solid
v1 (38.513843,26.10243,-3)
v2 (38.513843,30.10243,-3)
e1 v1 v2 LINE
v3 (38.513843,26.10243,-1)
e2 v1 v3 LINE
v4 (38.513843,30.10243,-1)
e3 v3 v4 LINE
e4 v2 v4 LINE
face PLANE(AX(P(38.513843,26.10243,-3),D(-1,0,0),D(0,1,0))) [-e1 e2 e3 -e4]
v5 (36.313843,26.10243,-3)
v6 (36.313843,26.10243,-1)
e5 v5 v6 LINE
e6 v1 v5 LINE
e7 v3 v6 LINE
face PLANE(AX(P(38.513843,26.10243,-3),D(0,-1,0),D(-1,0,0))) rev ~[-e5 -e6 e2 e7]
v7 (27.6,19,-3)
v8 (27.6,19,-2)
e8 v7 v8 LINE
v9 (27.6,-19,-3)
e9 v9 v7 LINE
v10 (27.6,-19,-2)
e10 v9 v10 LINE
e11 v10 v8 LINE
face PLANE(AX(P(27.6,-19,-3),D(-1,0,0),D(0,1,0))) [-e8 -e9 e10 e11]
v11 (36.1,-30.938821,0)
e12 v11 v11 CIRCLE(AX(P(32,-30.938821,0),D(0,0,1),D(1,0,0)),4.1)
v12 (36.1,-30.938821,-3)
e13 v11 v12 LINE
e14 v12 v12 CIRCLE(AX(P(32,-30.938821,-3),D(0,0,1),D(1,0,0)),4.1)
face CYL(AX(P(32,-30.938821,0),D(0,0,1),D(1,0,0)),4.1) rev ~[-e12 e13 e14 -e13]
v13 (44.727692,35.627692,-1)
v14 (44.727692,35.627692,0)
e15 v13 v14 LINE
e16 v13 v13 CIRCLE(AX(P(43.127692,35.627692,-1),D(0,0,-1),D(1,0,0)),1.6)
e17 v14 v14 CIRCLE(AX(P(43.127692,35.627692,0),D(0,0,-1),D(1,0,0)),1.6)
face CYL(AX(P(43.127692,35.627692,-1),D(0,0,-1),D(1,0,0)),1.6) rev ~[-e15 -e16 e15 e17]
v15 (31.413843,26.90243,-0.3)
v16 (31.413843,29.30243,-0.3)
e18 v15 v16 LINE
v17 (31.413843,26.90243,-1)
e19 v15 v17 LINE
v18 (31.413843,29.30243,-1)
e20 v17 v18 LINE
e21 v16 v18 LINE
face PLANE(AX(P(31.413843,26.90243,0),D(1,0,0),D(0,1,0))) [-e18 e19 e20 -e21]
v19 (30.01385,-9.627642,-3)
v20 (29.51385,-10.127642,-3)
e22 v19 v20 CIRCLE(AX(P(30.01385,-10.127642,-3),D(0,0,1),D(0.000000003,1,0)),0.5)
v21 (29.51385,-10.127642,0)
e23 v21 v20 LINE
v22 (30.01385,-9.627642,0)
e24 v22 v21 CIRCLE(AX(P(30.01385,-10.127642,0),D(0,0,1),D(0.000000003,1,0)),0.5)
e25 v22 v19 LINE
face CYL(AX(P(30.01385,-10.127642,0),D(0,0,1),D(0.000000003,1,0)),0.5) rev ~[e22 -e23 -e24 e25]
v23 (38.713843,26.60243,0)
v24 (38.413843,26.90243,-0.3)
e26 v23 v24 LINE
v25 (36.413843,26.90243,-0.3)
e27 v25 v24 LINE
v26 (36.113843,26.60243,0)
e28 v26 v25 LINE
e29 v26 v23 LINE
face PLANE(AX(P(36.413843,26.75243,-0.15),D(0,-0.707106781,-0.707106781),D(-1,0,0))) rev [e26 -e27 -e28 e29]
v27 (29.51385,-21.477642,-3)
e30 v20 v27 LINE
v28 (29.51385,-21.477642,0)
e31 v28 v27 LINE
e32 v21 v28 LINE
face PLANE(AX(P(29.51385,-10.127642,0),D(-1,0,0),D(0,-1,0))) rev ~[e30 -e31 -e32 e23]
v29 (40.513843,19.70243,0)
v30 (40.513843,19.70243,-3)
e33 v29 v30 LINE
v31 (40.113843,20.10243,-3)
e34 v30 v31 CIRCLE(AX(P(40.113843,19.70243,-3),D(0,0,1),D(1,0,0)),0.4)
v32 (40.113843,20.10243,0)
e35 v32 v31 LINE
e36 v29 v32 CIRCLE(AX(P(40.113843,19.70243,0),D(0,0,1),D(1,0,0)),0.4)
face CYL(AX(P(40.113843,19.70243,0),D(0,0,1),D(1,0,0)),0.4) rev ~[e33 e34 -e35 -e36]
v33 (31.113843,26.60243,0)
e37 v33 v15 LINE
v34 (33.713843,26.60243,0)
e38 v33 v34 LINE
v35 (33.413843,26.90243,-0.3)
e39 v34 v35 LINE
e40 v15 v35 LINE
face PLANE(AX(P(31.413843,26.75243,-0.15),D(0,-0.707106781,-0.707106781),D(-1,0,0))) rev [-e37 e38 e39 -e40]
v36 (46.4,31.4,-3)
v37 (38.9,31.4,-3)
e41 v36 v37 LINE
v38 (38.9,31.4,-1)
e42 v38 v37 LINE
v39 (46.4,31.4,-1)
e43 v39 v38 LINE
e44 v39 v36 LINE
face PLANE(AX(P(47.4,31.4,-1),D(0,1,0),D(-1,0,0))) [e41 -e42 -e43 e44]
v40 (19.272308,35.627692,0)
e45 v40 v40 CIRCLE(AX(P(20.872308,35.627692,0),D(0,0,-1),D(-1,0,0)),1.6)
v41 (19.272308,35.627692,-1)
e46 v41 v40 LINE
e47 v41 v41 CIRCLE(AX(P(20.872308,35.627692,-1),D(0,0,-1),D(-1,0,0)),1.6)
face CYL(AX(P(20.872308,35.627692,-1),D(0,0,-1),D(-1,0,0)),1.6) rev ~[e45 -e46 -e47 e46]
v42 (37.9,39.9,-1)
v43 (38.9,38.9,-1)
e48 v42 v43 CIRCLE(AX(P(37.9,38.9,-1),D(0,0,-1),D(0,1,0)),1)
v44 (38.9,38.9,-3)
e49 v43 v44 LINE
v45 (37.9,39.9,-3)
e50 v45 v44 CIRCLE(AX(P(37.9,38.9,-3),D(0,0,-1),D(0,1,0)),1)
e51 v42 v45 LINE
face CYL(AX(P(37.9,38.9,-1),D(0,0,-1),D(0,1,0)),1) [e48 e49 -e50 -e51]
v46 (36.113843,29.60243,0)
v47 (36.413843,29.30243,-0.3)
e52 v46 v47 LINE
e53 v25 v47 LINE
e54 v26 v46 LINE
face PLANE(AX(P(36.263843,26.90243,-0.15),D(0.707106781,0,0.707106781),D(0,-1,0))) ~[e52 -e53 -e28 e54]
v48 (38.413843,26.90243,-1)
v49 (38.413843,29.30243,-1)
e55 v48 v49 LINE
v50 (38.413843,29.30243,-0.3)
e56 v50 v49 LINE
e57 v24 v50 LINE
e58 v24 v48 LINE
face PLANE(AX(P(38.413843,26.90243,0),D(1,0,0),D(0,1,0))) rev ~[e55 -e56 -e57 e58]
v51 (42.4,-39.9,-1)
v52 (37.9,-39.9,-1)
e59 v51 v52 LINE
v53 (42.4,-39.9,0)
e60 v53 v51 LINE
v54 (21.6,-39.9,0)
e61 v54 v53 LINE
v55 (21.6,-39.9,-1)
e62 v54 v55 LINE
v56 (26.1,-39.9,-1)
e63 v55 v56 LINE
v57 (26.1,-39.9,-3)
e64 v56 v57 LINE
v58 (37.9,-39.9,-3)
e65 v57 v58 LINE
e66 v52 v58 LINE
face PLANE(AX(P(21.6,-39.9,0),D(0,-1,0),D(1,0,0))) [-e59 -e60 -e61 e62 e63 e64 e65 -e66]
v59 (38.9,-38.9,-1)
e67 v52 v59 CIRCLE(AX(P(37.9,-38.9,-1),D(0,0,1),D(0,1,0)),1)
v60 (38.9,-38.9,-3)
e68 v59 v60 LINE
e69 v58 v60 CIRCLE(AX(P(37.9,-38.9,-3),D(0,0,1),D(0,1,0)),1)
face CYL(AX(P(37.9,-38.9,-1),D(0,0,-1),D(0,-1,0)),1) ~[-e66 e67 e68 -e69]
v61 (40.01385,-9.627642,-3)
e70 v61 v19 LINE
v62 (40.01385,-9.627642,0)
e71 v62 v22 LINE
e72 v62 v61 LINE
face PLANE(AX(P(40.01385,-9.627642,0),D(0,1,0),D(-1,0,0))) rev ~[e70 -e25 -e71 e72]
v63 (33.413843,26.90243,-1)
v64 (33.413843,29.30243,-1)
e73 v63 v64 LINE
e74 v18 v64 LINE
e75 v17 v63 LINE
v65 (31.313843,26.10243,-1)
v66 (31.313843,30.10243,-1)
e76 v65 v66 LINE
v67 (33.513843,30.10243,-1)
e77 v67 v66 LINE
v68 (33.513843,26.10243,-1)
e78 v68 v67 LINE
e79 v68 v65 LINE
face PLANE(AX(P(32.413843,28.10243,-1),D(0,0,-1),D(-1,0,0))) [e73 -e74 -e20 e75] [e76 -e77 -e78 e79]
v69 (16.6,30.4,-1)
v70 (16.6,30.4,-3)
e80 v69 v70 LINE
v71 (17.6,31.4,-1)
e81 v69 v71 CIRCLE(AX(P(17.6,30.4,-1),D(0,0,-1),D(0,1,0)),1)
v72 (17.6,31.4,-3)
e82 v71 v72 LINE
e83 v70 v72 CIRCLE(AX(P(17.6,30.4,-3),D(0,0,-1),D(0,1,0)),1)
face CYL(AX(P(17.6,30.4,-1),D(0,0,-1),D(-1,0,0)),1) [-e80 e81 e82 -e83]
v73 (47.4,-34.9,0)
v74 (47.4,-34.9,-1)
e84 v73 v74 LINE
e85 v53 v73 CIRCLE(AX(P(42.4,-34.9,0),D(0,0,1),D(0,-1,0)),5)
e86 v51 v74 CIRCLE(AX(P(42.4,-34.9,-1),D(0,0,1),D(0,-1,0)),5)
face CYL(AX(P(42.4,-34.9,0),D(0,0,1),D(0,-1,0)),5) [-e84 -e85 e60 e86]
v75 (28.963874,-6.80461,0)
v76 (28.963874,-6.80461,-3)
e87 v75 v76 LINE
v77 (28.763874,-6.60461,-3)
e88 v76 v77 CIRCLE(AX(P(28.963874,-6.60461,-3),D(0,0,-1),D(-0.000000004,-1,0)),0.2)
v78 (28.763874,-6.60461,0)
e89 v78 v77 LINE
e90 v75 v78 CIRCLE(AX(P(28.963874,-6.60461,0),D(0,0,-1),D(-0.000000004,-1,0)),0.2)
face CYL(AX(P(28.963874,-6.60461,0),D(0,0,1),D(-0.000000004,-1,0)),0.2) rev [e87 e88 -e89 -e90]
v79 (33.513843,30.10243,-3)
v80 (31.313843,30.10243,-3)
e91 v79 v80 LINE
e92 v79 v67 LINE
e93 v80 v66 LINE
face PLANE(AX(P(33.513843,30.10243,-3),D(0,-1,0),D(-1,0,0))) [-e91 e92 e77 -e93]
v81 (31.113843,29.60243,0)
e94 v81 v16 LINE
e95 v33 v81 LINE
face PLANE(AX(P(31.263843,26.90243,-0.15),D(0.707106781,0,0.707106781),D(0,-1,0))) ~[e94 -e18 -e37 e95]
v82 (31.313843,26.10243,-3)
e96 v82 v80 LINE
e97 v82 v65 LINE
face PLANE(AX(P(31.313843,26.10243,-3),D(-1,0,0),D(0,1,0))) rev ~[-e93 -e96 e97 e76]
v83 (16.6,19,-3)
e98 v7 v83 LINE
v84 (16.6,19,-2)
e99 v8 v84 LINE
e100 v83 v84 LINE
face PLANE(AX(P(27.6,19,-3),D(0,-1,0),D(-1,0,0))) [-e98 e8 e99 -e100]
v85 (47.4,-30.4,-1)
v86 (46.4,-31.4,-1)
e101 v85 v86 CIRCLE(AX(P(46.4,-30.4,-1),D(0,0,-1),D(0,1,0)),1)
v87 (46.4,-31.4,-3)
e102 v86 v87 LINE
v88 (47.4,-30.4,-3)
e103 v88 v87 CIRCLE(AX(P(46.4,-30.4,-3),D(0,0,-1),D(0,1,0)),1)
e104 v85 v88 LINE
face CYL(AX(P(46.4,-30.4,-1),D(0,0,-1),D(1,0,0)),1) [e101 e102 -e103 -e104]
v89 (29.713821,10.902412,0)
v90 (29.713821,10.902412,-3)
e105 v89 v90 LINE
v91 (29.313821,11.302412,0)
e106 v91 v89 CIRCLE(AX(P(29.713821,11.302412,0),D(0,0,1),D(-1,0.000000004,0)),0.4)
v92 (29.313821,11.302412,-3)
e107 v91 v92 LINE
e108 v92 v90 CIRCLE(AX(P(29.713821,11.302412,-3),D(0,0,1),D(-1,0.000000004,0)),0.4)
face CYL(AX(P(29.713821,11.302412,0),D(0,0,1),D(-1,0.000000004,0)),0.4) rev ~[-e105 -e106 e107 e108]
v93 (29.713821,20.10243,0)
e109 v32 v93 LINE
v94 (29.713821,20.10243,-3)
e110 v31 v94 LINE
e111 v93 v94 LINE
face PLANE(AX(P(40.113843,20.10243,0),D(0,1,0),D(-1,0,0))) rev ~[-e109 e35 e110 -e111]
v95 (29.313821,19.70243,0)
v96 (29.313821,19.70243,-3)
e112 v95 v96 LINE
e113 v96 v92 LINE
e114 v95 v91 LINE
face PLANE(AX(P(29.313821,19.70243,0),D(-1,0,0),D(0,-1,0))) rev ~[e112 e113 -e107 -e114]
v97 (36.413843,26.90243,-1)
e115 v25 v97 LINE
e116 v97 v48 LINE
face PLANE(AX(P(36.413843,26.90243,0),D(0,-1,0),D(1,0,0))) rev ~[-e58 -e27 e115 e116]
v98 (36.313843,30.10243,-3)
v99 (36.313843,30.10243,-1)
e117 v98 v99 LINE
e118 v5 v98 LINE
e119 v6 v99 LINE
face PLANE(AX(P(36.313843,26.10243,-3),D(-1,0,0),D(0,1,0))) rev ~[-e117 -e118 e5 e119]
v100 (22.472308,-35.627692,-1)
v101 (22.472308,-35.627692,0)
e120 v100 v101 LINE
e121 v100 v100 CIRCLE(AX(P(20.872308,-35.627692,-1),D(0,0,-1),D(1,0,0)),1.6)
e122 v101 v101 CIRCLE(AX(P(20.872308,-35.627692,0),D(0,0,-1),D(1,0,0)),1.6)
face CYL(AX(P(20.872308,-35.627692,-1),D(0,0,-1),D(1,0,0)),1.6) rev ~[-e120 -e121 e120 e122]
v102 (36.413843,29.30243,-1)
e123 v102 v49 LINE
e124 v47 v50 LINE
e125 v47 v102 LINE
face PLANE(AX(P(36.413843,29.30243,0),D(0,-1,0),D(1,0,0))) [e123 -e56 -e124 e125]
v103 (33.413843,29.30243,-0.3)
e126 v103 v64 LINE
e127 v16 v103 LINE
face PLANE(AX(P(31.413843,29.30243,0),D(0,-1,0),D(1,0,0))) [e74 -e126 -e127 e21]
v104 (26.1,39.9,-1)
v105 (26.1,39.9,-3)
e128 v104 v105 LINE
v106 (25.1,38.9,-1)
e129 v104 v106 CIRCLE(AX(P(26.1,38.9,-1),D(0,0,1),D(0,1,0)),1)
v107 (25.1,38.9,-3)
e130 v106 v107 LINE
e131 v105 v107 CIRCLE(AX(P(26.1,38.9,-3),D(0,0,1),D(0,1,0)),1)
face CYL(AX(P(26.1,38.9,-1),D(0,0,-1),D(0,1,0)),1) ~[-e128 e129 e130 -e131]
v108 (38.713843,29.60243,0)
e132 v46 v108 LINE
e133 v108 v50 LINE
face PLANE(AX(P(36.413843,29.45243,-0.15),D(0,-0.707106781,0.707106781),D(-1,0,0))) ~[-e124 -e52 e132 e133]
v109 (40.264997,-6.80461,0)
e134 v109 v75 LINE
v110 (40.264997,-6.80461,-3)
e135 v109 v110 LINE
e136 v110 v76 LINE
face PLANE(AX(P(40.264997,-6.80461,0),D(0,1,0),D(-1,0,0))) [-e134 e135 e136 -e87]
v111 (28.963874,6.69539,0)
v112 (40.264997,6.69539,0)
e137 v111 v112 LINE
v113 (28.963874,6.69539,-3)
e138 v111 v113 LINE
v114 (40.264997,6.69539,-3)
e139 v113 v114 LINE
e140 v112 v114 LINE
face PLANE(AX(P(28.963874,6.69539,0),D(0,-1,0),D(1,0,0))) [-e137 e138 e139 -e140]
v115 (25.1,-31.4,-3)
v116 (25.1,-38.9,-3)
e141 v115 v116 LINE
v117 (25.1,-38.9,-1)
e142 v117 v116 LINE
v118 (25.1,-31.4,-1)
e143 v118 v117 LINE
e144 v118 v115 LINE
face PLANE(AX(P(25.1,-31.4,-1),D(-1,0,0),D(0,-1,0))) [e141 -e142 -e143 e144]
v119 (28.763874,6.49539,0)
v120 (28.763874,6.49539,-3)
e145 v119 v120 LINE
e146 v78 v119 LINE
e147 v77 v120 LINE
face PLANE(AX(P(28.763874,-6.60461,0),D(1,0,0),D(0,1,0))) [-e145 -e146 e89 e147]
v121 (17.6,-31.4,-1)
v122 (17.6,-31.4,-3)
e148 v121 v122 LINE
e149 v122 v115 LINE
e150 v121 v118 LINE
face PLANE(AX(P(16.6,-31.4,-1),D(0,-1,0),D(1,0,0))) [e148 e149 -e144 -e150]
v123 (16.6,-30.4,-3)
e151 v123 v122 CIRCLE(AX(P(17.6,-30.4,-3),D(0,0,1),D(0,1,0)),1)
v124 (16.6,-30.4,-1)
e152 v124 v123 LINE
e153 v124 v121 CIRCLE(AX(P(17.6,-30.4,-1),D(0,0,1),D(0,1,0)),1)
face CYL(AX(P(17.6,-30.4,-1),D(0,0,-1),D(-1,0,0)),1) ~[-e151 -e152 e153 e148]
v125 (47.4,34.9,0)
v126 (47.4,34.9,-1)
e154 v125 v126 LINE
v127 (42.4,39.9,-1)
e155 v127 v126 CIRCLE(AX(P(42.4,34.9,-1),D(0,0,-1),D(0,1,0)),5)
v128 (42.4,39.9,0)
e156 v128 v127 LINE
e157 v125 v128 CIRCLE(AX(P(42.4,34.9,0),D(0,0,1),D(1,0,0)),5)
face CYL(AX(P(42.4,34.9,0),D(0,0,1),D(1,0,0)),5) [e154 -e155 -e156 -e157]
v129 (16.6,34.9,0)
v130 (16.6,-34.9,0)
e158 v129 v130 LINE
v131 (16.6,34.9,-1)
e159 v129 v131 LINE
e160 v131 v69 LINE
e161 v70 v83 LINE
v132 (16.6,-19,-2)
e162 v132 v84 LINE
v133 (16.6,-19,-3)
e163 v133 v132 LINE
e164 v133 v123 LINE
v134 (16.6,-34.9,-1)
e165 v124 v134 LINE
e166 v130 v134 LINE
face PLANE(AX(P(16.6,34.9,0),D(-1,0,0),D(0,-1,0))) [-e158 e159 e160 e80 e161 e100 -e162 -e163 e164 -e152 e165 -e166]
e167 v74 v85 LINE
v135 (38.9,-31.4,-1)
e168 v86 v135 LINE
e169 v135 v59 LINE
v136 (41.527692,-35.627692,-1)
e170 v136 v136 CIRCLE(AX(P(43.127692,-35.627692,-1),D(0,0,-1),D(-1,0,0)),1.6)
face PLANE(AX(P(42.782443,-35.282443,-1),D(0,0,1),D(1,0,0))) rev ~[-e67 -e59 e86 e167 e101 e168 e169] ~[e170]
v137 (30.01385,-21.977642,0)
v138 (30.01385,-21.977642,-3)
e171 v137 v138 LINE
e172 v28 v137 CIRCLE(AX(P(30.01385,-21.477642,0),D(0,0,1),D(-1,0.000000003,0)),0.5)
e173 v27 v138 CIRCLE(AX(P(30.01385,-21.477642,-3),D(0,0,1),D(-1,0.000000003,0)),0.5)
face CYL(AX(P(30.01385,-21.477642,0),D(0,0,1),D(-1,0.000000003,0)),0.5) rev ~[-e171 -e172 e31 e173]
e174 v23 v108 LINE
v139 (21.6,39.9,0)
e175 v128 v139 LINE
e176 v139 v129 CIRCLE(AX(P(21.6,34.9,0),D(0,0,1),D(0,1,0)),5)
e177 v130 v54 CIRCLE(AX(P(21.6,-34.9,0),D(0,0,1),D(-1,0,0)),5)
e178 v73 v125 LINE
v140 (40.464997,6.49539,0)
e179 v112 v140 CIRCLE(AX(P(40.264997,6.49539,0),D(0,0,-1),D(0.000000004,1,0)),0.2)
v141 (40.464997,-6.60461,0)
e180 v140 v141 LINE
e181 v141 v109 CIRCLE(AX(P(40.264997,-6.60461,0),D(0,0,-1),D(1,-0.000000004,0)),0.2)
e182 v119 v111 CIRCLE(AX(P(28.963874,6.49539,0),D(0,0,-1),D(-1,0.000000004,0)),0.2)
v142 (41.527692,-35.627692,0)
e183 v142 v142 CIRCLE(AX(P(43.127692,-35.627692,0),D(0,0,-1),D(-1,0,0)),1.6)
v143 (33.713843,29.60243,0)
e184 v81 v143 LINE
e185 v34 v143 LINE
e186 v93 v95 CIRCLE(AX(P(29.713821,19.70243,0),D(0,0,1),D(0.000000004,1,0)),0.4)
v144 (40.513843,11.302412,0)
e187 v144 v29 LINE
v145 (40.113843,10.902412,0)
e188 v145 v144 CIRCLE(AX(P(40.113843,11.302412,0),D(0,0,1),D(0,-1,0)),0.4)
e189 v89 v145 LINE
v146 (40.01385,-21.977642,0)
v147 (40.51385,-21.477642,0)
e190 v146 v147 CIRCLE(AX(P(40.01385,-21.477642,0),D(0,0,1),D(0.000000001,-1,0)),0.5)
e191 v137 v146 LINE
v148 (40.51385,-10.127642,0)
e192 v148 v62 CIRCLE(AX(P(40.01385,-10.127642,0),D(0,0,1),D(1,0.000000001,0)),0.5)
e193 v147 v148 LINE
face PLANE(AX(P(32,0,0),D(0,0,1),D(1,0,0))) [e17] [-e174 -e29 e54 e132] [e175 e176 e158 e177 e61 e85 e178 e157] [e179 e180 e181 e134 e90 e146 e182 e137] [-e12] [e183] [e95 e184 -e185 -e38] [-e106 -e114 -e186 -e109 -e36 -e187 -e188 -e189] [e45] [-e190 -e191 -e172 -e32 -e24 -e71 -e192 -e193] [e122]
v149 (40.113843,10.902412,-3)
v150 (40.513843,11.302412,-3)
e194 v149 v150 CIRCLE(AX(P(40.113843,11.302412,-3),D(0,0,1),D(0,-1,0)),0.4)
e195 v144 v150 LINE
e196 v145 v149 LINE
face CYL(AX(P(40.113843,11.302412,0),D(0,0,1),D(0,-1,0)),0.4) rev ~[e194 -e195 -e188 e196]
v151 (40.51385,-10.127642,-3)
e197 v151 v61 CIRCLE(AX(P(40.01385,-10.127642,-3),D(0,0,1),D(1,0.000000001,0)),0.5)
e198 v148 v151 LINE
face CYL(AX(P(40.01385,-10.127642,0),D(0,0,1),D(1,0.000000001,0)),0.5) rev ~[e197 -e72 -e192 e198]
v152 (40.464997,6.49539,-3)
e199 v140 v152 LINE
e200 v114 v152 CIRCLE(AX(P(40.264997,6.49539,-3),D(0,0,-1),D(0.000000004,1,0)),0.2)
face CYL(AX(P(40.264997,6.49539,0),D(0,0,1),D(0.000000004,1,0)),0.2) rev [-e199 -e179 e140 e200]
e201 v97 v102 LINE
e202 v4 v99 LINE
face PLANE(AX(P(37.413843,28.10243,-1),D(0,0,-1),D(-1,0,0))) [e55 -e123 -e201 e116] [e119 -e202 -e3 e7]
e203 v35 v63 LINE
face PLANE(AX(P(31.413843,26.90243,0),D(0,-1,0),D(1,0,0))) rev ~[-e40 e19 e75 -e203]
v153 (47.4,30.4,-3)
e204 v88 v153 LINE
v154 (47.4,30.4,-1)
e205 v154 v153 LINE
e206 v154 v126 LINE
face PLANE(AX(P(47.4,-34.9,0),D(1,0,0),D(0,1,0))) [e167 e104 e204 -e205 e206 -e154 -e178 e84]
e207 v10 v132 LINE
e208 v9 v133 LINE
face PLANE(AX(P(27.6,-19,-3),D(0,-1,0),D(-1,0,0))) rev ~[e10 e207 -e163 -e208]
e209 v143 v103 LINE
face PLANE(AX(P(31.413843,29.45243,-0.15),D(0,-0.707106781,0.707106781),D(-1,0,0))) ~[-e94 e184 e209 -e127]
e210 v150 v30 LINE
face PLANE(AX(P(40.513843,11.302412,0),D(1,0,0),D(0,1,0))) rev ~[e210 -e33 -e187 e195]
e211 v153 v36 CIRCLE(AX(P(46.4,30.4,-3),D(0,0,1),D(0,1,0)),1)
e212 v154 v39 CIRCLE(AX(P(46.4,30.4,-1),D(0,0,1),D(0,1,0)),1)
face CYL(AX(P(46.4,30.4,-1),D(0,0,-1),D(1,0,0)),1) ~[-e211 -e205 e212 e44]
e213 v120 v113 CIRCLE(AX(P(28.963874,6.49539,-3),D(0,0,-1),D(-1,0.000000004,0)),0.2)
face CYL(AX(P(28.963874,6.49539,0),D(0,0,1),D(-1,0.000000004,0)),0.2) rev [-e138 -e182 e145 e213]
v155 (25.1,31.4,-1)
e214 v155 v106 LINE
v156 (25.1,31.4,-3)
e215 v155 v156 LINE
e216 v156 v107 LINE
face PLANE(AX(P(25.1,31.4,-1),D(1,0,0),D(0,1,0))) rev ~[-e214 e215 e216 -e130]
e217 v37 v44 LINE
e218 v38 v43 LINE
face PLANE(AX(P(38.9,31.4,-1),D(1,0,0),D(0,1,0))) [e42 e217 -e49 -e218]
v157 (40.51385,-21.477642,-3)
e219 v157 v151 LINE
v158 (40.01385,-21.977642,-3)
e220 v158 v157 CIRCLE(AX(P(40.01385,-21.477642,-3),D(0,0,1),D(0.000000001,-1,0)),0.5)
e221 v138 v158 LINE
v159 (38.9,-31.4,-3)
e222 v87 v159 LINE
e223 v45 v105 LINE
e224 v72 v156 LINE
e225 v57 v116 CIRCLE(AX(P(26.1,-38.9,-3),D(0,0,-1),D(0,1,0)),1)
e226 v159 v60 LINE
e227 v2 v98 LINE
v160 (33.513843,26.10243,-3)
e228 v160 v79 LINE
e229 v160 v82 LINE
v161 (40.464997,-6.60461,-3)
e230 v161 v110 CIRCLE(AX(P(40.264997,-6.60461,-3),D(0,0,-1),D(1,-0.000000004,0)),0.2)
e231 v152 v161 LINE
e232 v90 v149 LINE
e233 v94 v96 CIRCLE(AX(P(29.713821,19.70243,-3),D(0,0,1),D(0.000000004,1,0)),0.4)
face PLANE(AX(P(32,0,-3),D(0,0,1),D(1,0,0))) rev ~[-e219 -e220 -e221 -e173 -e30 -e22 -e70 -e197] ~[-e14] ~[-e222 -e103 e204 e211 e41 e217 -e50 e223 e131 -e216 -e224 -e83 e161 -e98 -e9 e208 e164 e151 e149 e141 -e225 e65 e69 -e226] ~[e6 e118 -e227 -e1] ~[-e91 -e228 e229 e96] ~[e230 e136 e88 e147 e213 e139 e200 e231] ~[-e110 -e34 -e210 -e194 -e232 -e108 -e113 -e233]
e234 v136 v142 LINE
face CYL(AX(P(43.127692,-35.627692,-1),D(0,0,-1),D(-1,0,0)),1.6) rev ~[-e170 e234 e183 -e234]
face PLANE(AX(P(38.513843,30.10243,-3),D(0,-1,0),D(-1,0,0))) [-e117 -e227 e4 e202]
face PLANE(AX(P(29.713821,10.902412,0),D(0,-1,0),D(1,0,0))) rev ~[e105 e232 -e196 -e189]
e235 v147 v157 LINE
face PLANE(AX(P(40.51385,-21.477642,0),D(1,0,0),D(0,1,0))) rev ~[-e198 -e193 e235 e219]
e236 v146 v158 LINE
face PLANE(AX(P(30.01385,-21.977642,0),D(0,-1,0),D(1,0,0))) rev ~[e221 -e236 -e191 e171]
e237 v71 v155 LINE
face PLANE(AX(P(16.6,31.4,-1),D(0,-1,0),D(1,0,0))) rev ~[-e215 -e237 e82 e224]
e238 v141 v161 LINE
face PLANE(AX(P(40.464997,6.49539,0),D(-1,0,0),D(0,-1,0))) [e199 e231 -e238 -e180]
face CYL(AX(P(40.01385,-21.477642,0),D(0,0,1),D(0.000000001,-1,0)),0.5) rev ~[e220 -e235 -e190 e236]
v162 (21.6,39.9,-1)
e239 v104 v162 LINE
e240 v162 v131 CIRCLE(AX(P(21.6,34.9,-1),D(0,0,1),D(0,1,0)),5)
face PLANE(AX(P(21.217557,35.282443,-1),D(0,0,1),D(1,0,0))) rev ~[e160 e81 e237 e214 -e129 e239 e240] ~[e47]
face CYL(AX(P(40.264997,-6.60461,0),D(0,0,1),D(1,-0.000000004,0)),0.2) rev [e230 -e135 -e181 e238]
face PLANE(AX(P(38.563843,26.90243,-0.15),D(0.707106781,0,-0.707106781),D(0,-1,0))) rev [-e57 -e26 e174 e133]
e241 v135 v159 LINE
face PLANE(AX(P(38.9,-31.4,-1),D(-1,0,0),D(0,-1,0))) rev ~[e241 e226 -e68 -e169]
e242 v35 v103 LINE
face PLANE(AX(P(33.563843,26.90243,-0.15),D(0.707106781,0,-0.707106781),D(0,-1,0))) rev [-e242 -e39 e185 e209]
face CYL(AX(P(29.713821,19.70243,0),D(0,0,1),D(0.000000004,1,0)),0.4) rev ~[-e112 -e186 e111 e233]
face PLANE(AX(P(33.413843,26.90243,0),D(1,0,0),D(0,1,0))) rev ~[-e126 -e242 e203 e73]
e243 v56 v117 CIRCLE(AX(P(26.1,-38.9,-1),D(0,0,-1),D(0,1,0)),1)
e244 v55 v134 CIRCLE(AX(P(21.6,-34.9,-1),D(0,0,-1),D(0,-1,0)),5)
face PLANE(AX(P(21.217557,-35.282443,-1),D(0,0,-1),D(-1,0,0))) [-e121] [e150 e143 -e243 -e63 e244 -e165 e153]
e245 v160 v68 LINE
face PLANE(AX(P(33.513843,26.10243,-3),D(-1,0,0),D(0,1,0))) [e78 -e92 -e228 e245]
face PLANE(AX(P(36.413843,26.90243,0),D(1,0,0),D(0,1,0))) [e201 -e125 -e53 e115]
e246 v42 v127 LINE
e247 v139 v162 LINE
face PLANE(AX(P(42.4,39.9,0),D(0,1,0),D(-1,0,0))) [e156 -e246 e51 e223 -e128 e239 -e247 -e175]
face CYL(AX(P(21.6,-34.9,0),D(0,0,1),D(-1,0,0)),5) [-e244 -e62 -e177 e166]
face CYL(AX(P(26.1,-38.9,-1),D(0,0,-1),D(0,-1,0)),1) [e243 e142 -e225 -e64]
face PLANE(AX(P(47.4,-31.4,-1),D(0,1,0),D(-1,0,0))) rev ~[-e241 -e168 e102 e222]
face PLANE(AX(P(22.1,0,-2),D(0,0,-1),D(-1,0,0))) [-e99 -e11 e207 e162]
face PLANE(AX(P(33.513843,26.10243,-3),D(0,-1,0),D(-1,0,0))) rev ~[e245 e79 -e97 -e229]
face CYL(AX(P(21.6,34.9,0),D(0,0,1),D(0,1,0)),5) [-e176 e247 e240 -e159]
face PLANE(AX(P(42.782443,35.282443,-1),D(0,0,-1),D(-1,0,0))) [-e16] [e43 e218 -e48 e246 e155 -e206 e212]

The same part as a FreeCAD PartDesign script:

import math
import FreeCAD as App
import Part
import Sketcher
Q = App.Units.Quantity


def edges_at(feature, points):
    """Names of the edges that pass closest to the given points."""
    edges = feature.Shape.Edges
    near = lambda p: min(range(len(edges)), key=lambda i: edges[i].distToShape(Part.Vertex(*p))[0])
    return sorted({f"Edge{near(p) + 1}" for p in points})


def add_polygon(sketch, points):
    """Adds a closed chain of lines whose ends are joined by coincident constraints."""
    first, n = sketch.GeometryCount, len(points)
    for a, b in zip(points, points[1:] + points[:1]):
        sketch.addGeometry(Part.LineSegment(App.Vector(*a, 0), App.Vector(*b, 0)), False)
    for i in range(n):
        sketch.addConstraint(Sketcher.Constraint("Coincident", first + i, 2, first + (i + 1) % n, 1))

doc = App.newDocument("Part")
body = doc.addObject("PartDesign::Body", "Body")

# Sketch on XY plane
sketch1 = body.newObject("Sketcher::SketchObject", "Sketch")
sketch1.AttachmentSupport = (doc.getObject("XY_Plane"), [""])
sketch1.MapMode = "FlatFace"
sketch1.addGeometry(Part.LineSegment(App.Vector(47.4, -34.9, 0), App.Vector(47.4, 34.9, 0)), False)  # 0
sketch1.addGeometry(Part.ArcOfCircle(Part.Circle(App.Vector(42.4, 34.9, 0), App.Vector(0, 0, 1), 5), math.radians(0), math.radians(90)), False)  # 1
sketch1.addGeometry(Part.LineSegment(App.Vector(42.4, 39.9, 0), App.Vector(21.6, 39.9, 0)), False)  # 2
sketch1.addGeometry(Part.ArcOfCircle(Part.Circle(App.Vector(21.6, 34.9, 0), App.Vector(0, 0, 1), 5), math.radians(90), math.radians(180)), False)  # 3
sketch1.addGeometry(Part.LineSegment(App.Vector(16.6, 34.9, 0), App.Vector(16.6, -34.9, 0)), False)  # 4
sketch1.addGeometry(Part.ArcOfCircle(Part.Circle(App.Vector(21.6, -34.9, 0), App.Vector(0, 0, 1), 5), math.radians(180), math.radians(270)), False)  # 5
sketch1.addGeometry(Part.LineSegment(App.Vector(21.6, -39.9, 0), App.Vector(42.4, -39.9, 0)), False)  # 6
sketch1.addGeometry(Part.ArcOfCircle(Part.Circle(App.Vector(42.4, -34.9, 0), App.Vector(0, 0, 1), 5), math.radians(-90), math.radians(0)), False)  # 7
sketch1.addGeometry(Part.ArcOfCircle(Part.Circle(App.Vector(40.26, 6.5, 0), App.Vector(0, 0, 1), 0.2), math.radians(0), math.radians(90)), False)  # 8
sketch1.addGeometry(Part.LineSegment(App.Vector(40.46, 6.5, 0), App.Vector(40.46, -6.6, 0)), False)  # 9
sketch1.addGeometry(Part.ArcOfCircle(Part.Circle(App.Vector(40.26, -6.6, 0), App.Vector(0, 0, 1), 0.2), math.radians(-90), math.radians(0)), False)  # 10
sketch1.addGeometry(Part.LineSegment(App.Vector(40.26, -6.8, 0), App.Vector(28.96, -6.8, 0)), False)  # 11
sketch1.addGeometry(Part.ArcOfCircle(Part.Circle(App.Vector(28.96, -6.6, 0), App.Vector(0, 0, 1), 0.2), math.radians(-180), math.radians(-90)), False)  # 12
sketch1.addGeometry(Part.LineSegment(App.Vector(28.76, -6.6, 0), App.Vector(28.76, 6.5, 0)), False)  # 13
sketch1.addGeometry(Part.ArcOfCircle(Part.Circle(App.Vector(28.96, 6.5, 0), App.Vector(0, 0, 1), 0.2), math.radians(90), math.radians(180)), False)  # 14
sketch1.addGeometry(Part.LineSegment(App.Vector(28.96, 6.7, 0), App.Vector(40.26, 6.7, 0)), False)  # 15
sketch1.addGeometry(Part.LineSegment(App.Vector(40.51, -10.13, 0), App.Vector(40.51, -21.48, 0)), False)  # 16
sketch1.addGeometry(Part.ArcOfCircle(Part.Circle(App.Vector(40.01, -21.48, 0), App.Vector(0, 0, 1), 0.5), math.radians(-90), math.radians(0)), False)  # 17
sketch1.addGeometry(Part.LineSegment(App.Vector(40.01, -21.98, 0), App.Vector(30.01, -21.98, 0)), False)  # 18
sketch1.addGeometry(Part.ArcOfCircle(Part.Circle(App.Vector(30.01, -21.48, 0), App.Vector(0, 0, 1), 0.5), math.radians(180), math.radians(270)), False)  # 19
sketch1.addGeometry(Part.LineSegment(App.Vector(29.51, -21.48, 0), App.Vector(29.51, -10.13, 0)), False)  # 20
sketch1.addGeometry(Part.ArcOfCircle(Part.Circle(App.Vector(30.01, -10.13, 0), App.Vector(0, 0, 1), 0.5), math.radians(90), math.radians(180)), False)  # 21
sketch1.addGeometry(Part.LineSegment(App.Vector(30.01, -9.63, 0), App.Vector(40.01, -9.63, 0)), False)  # 22
sketch1.addGeometry(Part.ArcOfCircle(Part.Circle(App.Vector(40.01, -10.13, 0), App.Vector(0, 0, 1), 0.5), math.radians(0), math.radians(90)), False)  # 23
add_polygon(sketch1, [(33.41, 26.9), (31.41, 26.9), (31.41, 29.3), (33.41, 29.3)])  # lines 24-27
sketch1.addGeometry(Part.LineSegment(App.Vector(40.51, 19.7, 0), App.Vector(40.51, 11.3, 0)), False)  # 28
sketch1.addGeometry(Part.ArcOfCircle(Part.Circle(App.Vector(40.11, 11.3, 0), App.Vector(0, 0, 1), 0.4), math.radians(-90), math.radians(0)), False)  # 29
sketch1.addGeometry(Part.LineSegment(App.Vector(40.11, 10.9, 0), App.Vector(29.71, 10.9, 0)), False)  # 30
sketch1.addGeometry(Part.ArcOfCircle(Part.Circle(App.Vector(29.71, 11.3, 0), App.Vector(0, 0, 1), 0.4), math.radians(180), math.radians(270)), False)  # 31
sketch1.addGeometry(Part.LineSegment(App.Vector(29.31, 11.3, 0), App.Vector(29.31, 19.7, 0)), False)  # 32
sketch1.addGeometry(Part.ArcOfCircle(Part.Circle(App.Vector(29.71, 19.7, 0), App.Vector(0, 0, 1), 0.4), math.radians(90), math.radians(180)), False)  # 33
sketch1.addGeometry(Part.LineSegment(App.Vector(29.71, 20.1, 0), App.Vector(40.11, 20.1, 0)), False)  # 34
sketch1.addGeometry(Part.ArcOfCircle(Part.Circle(App.Vector(40.11, 19.7, 0), App.Vector(0, 0, 1), 0.4), math.radians(0), math.radians(90)), False)  # 35
add_polygon(sketch1, [(38.41, 26.9), (36.41, 26.9), (36.41, 29.3), (38.41, 29.3)])  # lines 36-39
sketch1.addConstraint(Sketcher.Constraint("Tangent", 0, 2, 1, 1))
sketch1.addConstraint(Sketcher.Constraint("Tangent", 1, 2, 2, 1))
sketch1.addConstraint(Sketcher.Constraint("Tangent", 2, 2, 3, 1))
sketch1.addConstraint(Sketcher.Constraint("Tangent", 3, 2, 4, 1))
sketch1.addConstraint(Sketcher.Constraint("Tangent", 4, 2, 5, 1))
sketch1.addConstraint(Sketcher.Constraint("Tangent", 5, 2, 6, 1))
sketch1.addConstraint(Sketcher.Constraint("Tangent", 6, 2, 7, 1))
sketch1.addConstraint(Sketcher.Constraint("Tangent", 7, 2, 0, 1))
sketch1.addConstraint(Sketcher.Constraint("Tangent", 8, 1, 9, 1))
sketch1.addConstraint(Sketcher.Constraint("Tangent", 9, 2, 10, 2))
sketch1.addConstraint(Sketcher.Constraint("Tangent", 10, 1, 11, 1))
sketch1.addConstraint(Sketcher.Constraint("Tangent", 11, 2, 12, 2))
sketch1.addConstraint(Sketcher.Constraint("Tangent", 12, 1, 13, 1))
sketch1.addConstraint(Sketcher.Constraint("Tangent", 13, 2, 14, 2))
sketch1.addConstraint(Sketcher.Constraint("Tangent", 14, 1, 15, 1))
sketch1.addConstraint(Sketcher.Constraint("Tangent", 15, 2, 8, 2))
sketch1.addConstraint(Sketcher.Constraint("Tangent", 16, 2, 17, 2))
sketch1.addConstraint(Sketcher.Constraint("Tangent", 17, 1, 18, 1))
sketch1.addConstraint(Sketcher.Constraint("Tangent", 18, 2, 19, 2))
sketch1.addConstraint(Sketcher.Constraint("Tangent", 19, 1, 20, 1))
sketch1.addConstraint(Sketcher.Constraint("Tangent", 20, 2, 21, 2))
sketch1.addConstraint(Sketcher.Constraint("Tangent", 21, 1, 22, 1))
sketch1.addConstraint(Sketcher.Constraint("Tangent", 22, 2, 23, 2))
sketch1.addConstraint(Sketcher.Constraint("Tangent", 23, 1, 16, 1))
sketch1.addConstraint(Sketcher.Constraint("Tangent", 28, 2, 29, 2))
sketch1.addConstraint(Sketcher.Constraint("Tangent", 29, 1, 30, 1))
sketch1.addConstraint(Sketcher.Constraint("Tangent", 30, 2, 31, 2))
sketch1.addConstraint(Sketcher.Constraint("Tangent", 31, 1, 32, 1))
sketch1.addConstraint(Sketcher.Constraint("Tangent", 32, 2, 33, 2))
sketch1.addConstraint(Sketcher.Constraint("Tangent", 33, 1, 34, 1))
sketch1.addConstraint(Sketcher.Constraint("Tangent", 34, 2, 35, 2))
sketch1.addConstraint(Sketcher.Constraint("Tangent", 35, 1, 28, 1))
sketch1.addConstraint(Sketcher.Constraint("Vertical", 0))
sketch1.addConstraint(Sketcher.Constraint("Horizontal", 2))
sketch1.addConstraint(Sketcher.Constraint("Vertical", 4))
sketch1.addConstraint(Sketcher.Constraint("Horizontal", 6))
sketch1.addConstraint(Sketcher.Constraint("Vertical", 9))
sketch1.addConstraint(Sketcher.Constraint("Horizontal", 11))
sketch1.addConstraint(Sketcher.Constraint("Vertical", 13))
sketch1.addConstraint(Sketcher.Constraint("Horizontal", 15))
sketch1.addConstraint(Sketcher.Constraint("Vertical", 16))
sketch1.addConstraint(Sketcher.Constraint("Horizontal", 18))
sketch1.addConstraint(Sketcher.Constraint("Vertical", 20))
sketch1.addConstraint(Sketcher.Constraint("Horizontal", 22))
sketch1.addConstraint(Sketcher.Constraint("Horizontal", 24))
sketch1.addConstraint(Sketcher.Constraint("Vertical", 25))
sketch1.addConstraint(Sketcher.Constraint("Horizontal", 26))
sketch1.addConstraint(Sketcher.Constraint("Vertical", 27))
sketch1.addConstraint(Sketcher.Constraint("Vertical", 28))
sketch1.addConstraint(Sketcher.Constraint("Horizontal", 30))
sketch1.addConstraint(Sketcher.Constraint("Vertical", 32))
sketch1.addConstraint(Sketcher.Constraint("Horizontal", 34))
sketch1.addConstraint(Sketcher.Constraint("Horizontal", 36))
sketch1.addConstraint(Sketcher.Constraint("Vertical", 37))
sketch1.addConstraint(Sketcher.Constraint("Horizontal", 38))
sketch1.addConstraint(Sketcher.Constraint("Vertical", 39))
sketch1.addConstraint(Sketcher.Constraint("Equal", 1, 3))
sketch1.addConstraint(Sketcher.Constraint("Equal", 3, 5))
sketch1.addConstraint(Sketcher.Constraint("Equal", 5, 7))
sketch1.addConstraint(Sketcher.Constraint("Equal", 8, 10))
sketch1.addConstraint(Sketcher.Constraint("Equal", 10, 12))
sketch1.addConstraint(Sketcher.Constraint("Equal", 12, 14))
sketch1.addConstraint(Sketcher.Constraint("Equal", 17, 19))
sketch1.addConstraint(Sketcher.Constraint("Equal", 19, 21))
sketch1.addConstraint(Sketcher.Constraint("Equal", 21, 23))
sketch1.addConstraint(Sketcher.Constraint("Equal", 29, 31))
sketch1.addConstraint(Sketcher.Constraint("Equal", 31, 33))
sketch1.addConstraint(Sketcher.Constraint("Equal", 33, 35))
sketch1.addConstraint(Sketcher.Constraint("Horizontal", 27, 2, 36, 2))
sketch1.addConstraint(Sketcher.Constraint("Horizontal", 26, 2, 37, 2))
sketch1.addConstraint(Sketcher.Constraint("Equal", 26, 36))
sketch1.addConstraint(Sketcher.Constraint("Radius", 1, Q("5 mm")))
sketch1.addConstraint(Sketcher.Constraint("Radius", 8, Q("0.2 mm")))
sketch1.addConstraint(Sketcher.Constraint("Radius", 17, Q("0.5 mm")))
sketch1.addConstraint(Sketcher.Constraint("Radius", 29, Q("0.4 mm")))
sketch1.addConstraint(Sketcher.Constraint("DistanceX", 18, 2, 18, 1, Q("10 mm")))
sketch1.addConstraint(Sketcher.Constraint("DistanceX", 24, 2, 24, 1, Q("2 mm")))
sketch1.addConstraint(Sketcher.Constraint("DistanceX", 2, 2, 2, 1, Q("20.8 mm")))
sketch1.addConstraint(Sketcher.Constraint("DistanceY", 0, 1, 0, 2, Q("69.8 mm")))
sketch1.addConstraint(Sketcher.Constraint("DistanceY", 9, 2, 9, 1, Q("13.1 mm")))
sketch1.addConstraint(Sketcher.Constraint("DistanceY", 25, 1, 25, 2, Q("2.4 mm")))
sketch1.addConstraint(Sketcher.Constraint("DistanceX", 27, 2, 36, 2, Q("3 mm")))
sketch1.addConstraint(Sketcher.Constraint("DistanceY", 16, 2, 16, 1, Q("11.35 mm")))
sketch1.addConstraint(Sketcher.Constraint("DistanceX", -1, 1, 1, 3, Q("42.4 mm")))
sketch1.addConstraint(Sketcher.Constraint("DistanceY", -1, 1, 1, 3, Q("34.9 mm")))
sketch1.addConstraint(Sketcher.Constraint("DistanceY", 33, 3, 24, 2, Q("7.2 mm")))
sketch1.addConstraint(Sketcher.Constraint("DistanceX", 24, 2, 35, 3, Q("8.7 mm")))
sketch1.addConstraint(Sketcher.Constraint("DistanceX", 30, 2, 30, 1, Q("10.400022 mm")))
sketch1.addConstraint(Sketcher.Constraint("DistanceX", 11, 2, 11, 1, Q("11.301123 mm")))
sketch1.addConstraint(Sketcher.Constraint("DistanceY", 28, 2, 28, 1, Q("8.400018 mm")))
sketch1.addConstraint(Sketcher.Constraint("DistanceY", -1, 1, 8, 3, Q("6.49539 mm")))
sketch1.addConstraint(Sketcher.Constraint("DistanceX", -1, 1, 17, 3, Q("40.01385 mm")))
sketch1.addConstraint(Sketcher.Constraint("DistanceY", 17, 3, -1, 1, Q("21.477642 mm")))
sketch1.addConstraint(Sketcher.Constraint("DistanceX", -1, 1, 31, 3, Q("29.713821 mm")))
sketch1.addConstraint(Sketcher.Constraint("DistanceY", -1, 1, 33, 3, Q("19.70243 mm")))
sketch1.addConstraint(Sketcher.Constraint("DistanceX", 14, 3, 29, 3, Q("11.149969 mm")))
pad1 = body.newObject("PartDesign::Pad", "Pad")
pad1.Profile = sketch1
pad1.Length = 3
pad1.Reversed = True

# Sketch on XY plane
sketch2 = body.newObject("Sketcher::SketchObject", "Sketch001")
sketch2.AttachmentSupport = (doc.getObject("XY_Plane"), [""])
sketch2.MapMode = "FlatFace"
sketch2.AttachmentOffset = App.Placement(App.Vector(0, 0, -3), App.Rotation())
add_polygon(sketch2, [(28, 19), (28, -19), (17, -19), (17, 19)])  # lines 0-3
sketch2.addConstraint(Sketcher.Constraint("Vertical", 0))
sketch2.addConstraint(Sketcher.Constraint("Horizontal", 1))
sketch2.addConstraint(Sketcher.Constraint("Vertical", 2))
sketch2.addConstraint(Sketcher.Constraint("Horizontal", 3))
sketch2.addConstraint(Sketcher.Constraint("DistanceX", 1, 2, 1, 1, Q("11 mm")))
sketch2.addConstraint(Sketcher.Constraint("DistanceY", 0, 2, 0, 1, Q("38 mm")))
sketch2.addConstraint(Sketcher.Constraint("DistanceY", 0, 2, -1, 1, Q("19 mm")))
sketch2.addConstraint(Sketcher.Constraint("DistanceX", -1, 1, 0, 2, Q("27.6 mm")))
pocket1 = body.newObject("PartDesign::Pocket", "Pocket")
pocket1.Profile = sketch2
pocket1.Length = 1
pocket1.Reversed = True

# Sketch on XY plane
sketch3 = body.newObject("Sketcher::SketchObject", "Sketch002")
sketch3.AttachmentSupport = (doc.getObject("XY_Plane"), [""])
sketch3.MapMode = "FlatFace"
sketch3.AttachmentOffset = App.Placement(App.Vector(0, 0, -1), App.Rotation())
sketch3.addGeometry(Part.LineSegment(App.Vector(38.9, -31.4, 0), App.Vector(47.4, -31.4, 0)), False)
sketch3.addGeometry(Part.LineSegment(App.Vector(47.4, -31.4, 0), App.Vector(47.4, -34.9, 0)), False)
sketch3.addGeometry(Part.ArcOfCircle(Part.Circle(App.Vector(42.4, -34.9, 0), App.Vector(0, 0, 1), 5), math.radians(-90), math.radians(0)), False)
sketch3.addGeometry(Part.LineSegment(App.Vector(42.4, -39.9, 0), App.Vector(38.9, -39.9, 0)), False)
sketch3.addGeometry(Part.LineSegment(App.Vector(38.9, -39.9, 0), App.Vector(38.9, -31.4, 0)), False)
sketch3.addGeometry(Part.LineSegment(App.Vector(47.4, 34.9, 0), App.Vector(47.4, 31.4, 0)), False)
sketch3.addGeometry(Part.LineSegment(App.Vector(47.4, 31.4, 0), App.Vector(38.9, 31.4, 0)), False)
sketch3.addGeometry(Part.LineSegment(App.Vector(38.9, 31.4, 0), App.Vector(38.9, 39.9, 0)), False)
sketch3.addGeometry(Part.LineSegment(App.Vector(38.9, 39.9, 0), App.Vector(42.4, 39.9, 0)), False)
sketch3.addGeometry(Part.ArcOfCircle(Part.Circle(App.Vector(42.4, 34.9, 0), App.Vector(0, 0, 1), 5), math.radians(0), math.radians(90)), False)
sketch3.addGeometry(Part.LineSegment(App.Vector(25.1, 31.4, 0), App.Vector(16.6, 31.4, 0)), False)
sketch3.addGeometry(Part.LineSegment(App.Vector(16.6, 31.4, 0), App.Vector(16.6, 34.9, 0)), False)
sketch3.addGeometry(Part.ArcOfCircle(Part.Circle(App.Vector(21.6, 34.9, 0), App.Vector(0, 0, 1), 5), math.radians(90), math.radians(180)), False)
sketch3.addGeometry(Part.LineSegment(App.Vector(21.6, 39.9, 0), App.Vector(25.1, 39.9, 0)), False)
sketch3.addGeometry(Part.LineSegment(App.Vector(25.1, 39.9, 0), App.Vector(25.1, 31.4, 0)), False)
sketch3.addGeometry(Part.LineSegment(App.Vector(16.6, -34.9, 0), App.Vector(16.6, -31.4, 0)), False)
sketch3.addGeometry(Part.LineSegment(App.Vector(16.6, -31.4, 0), App.Vector(25.1, -31.4, 0)), False)
sketch3.addGeometry(Part.LineSegment(App.Vector(25.1, -31.4, 0), App.Vector(25.1, -39.9, 0)), False)
sketch3.addGeometry(Part.LineSegment(App.Vector(25.1, -39.9, 0), App.Vector(21.6, -39.9, 0)), False)
sketch3.addGeometry(Part.ArcOfCircle(Part.Circle(App.Vector(21.6, -34.9, 0), App.Vector(0, 0, 1), 5), math.radians(180), math.radians(270)), False)
sketch3.addConstraint(Sketcher.Constraint("Coincident", 0, 2, 1, 1))
sketch3.addConstraint(Sketcher.Constraint("Tangent", 1, 2, 2, 2))
sketch3.addConstraint(Sketcher.Constraint("Tangent", 2, 1, 3, 1))
sketch3.addConstraint(Sketcher.Constraint("Coincident", 3, 2, 4, 1))
sketch3.addConstraint(Sketcher.Constraint("Coincident", 4, 2, 0, 1))
sketch3.addConstraint(Sketcher.Constraint("Coincident", 5, 2, 6, 1))
sketch3.addConstraint(Sketcher.Constraint("Coincident", 6, 2, 7, 1))
sketch3.addConstraint(Sketcher.Constraint("Coincident", 7, 2, 8, 1))
sketch3.addConstraint(Sketcher.Constraint("Tangent", 8, 2, 9, 2))
sketch3.addConstraint(Sketcher.Constraint("Tangent", 9, 1, 5, 1))
sketch3.addConstraint(Sketcher.Constraint("Coincident", 10, 2, 11, 1))
sketch3.addConstraint(Sketcher.Constraint("Tangent", 11, 2, 12, 2))
sketch3.addConstraint(Sketcher.Constraint("Tangent", 12, 1, 13, 1))
sketch3.addConstraint(Sketcher.Constraint("Coincident", 13, 2, 14, 1))
sketch3.addConstraint(Sketcher.Constraint("Coincident", 14, 2, 10, 1))
sketch3.addConstraint(Sketcher.Constraint("Coincident", 15, 2, 16, 1))
sketch3.addConstraint(Sketcher.Constraint("Coincident", 16, 2, 17, 1))
sketch3.addConstraint(Sketcher.Constraint("Coincident", 17, 2, 18, 1))
sketch3.addConstraint(Sketcher.Constraint("Tangent", 18, 2, 19, 2))
sketch3.addConstraint(Sketcher.Constraint("Tangent", 19, 1, 15, 1))
sketch3.addConstraint(Sketcher.Constraint("Horizontal", 0))
sketch3.addConstraint(Sketcher.Constraint("Vertical", 1))
sketch3.addConstraint(Sketcher.Constraint("Horizontal", 3))
sketch3.addConstraint(Sketcher.Constraint("Vertical", 4))
sketch3.addConstraint(Sketcher.Constraint("Vertical", 5))
sketch3.addConstraint(Sketcher.Constraint("Horizontal", 6))
sketch3.addConstraint(Sketcher.Constraint("Vertical", 7))
sketch3.addConstraint(Sketcher.Constraint("Horizontal", 8))
sketch3.addConstraint(Sketcher.Constraint("Horizontal", 10))
sketch3.addConstraint(Sketcher.Constraint("Vertical", 11))
sketch3.addConstraint(Sketcher.Constraint("Horizontal", 13))
sketch3.addConstraint(Sketcher.Constraint("Vertical", 14))
sketch3.addConstraint(Sketcher.Constraint("Vertical", 15))
sketch3.addConstraint(Sketcher.Constraint("Horizontal", 16))
sketch3.addConstraint(Sketcher.Constraint("Vertical", 17))
sketch3.addConstraint(Sketcher.Constraint("Horizontal", 18))
sketch3.addConstraint(Sketcher.Constraint("Equal", 2, 9))
sketch3.addConstraint(Sketcher.Constraint("Equal", 9, 12))
sketch3.addConstraint(Sketcher.Constraint("Equal", 12, 19))
sketch3.addConstraint(Sketcher.Constraint("Symmetric", 2, 3, 9, 3, -1))
sketch3.addConstraint(Sketcher.Constraint("Symmetric", 12, 3, 19, 3, -1))
sketch3.addConstraint(Sketcher.Constraint("Symmetric", 4, 2, 6, 2, -1))
sketch3.addConstraint(Sketcher.Constraint("Symmetric", 14, 2, 16, 2, -1))
sketch3.addConstraint(Sketcher.Constraint("Horizontal", 9, 3, 12, 3))
sketch3.addConstraint(Sketcher.Constraint("Horizontal", 6, 2, 10, 2))
sketch3.addConstraint(Sketcher.Constraint("Equal", 6, 10))
sketch3.addConstraint(Sketcher.Constraint("Equal", 18, 1))
sketch3.addConstraint(Sketcher.Constraint("Radius", 2, Q("5 mm")))
sketch3.addConstraint(Sketcher.Constraint("DistanceX", 0, 1, 0, 2, Q("8.5 mm")))
sketch3.addConstraint(Sketcher.Constraint("DistanceX", -1, 1, 2, 3, Q("42.4 mm")))
sketch3.addConstraint(Sketcher.Constraint("DistanceY", 2, 3, -1, 1, Q("34.9 mm")))
sketch3.addConstraint(Sketcher.Constraint("DistanceX", -1, 1, 12, 3, Q("21.6 mm")))
pocket2 = body.newObject("PartDesign::Pocket", "Pocket001")
pocket2.Profile = sketch3
pocket2.Length = 2

# Sketch on XY plane
sketch4 = body.newObject("Sketcher::SketchObject", "Sketch003")
sketch4.AttachmentSupport = (doc.getObject("XY_Plane"), [""])
sketch4.MapMode = "FlatFace"
sketch4.AttachmentOffset = App.Placement(App.Vector(0, 0, -1), App.Rotation())
sketch4.addGeometry(Part.Circle(App.Vector(20.9, 35.6, 0), App.Vector(0, 0, 1), 1.6), False)
sketch4.addGeometry(Part.Circle(App.Vector(20.9, -35.6, 0), App.Vector(0, 0, 1), 1.6), False)
sketch4.addGeometry(Part.Circle(App.Vector(43.1, -35.6, 0), App.Vector(0, 0, 1), 1.6), False)
sketch4.addGeometry(Part.Circle(App.Vector(43.1, 35.6, 0), App.Vector(0, 0, 1), 1.6), False)
sketch4.addConstraint(Sketcher.Constraint("Equal", 0, 1))
sketch4.addConstraint(Sketcher.Constraint("Equal", 1, 2))
sketch4.addConstraint(Sketcher.Constraint("Equal", 2, 3))
sketch4.addConstraint(Sketcher.Constraint("Symmetric", 0, 3, 1, 3, -1))
sketch4.addConstraint(Sketcher.Constraint("Symmetric", 2, 3, 3, 3, -1))
sketch4.addConstraint(Sketcher.Constraint("Horizontal", 1, 3, 2, 3))
sketch4.addConstraint(Sketcher.Constraint("Diameter", 0, Q("3.2 mm")))
sketch4.addConstraint(Sketcher.Constraint("DistanceX", -1, 1, 0, 3, Q("20.872308 mm")))
sketch4.addConstraint(Sketcher.Constraint("DistanceY", -1, 1, 0, 3, Q("35.627692 mm")))
sketch4.addConstraint(Sketcher.Constraint("DistanceX", -1, 1, 2, 3, Q("43.127692 mm")))
pocket3 = body.newObject("PartDesign::Pocket", "Pocket002")
pocket3.Profile = sketch4
pocket3.Type = "ThroughAll"
pocket3.Reversed = True

# Sketch on XY plane
sketch5 = body.newObject("Sketcher::SketchObject", "Sketch004")
sketch5.AttachmentSupport = (doc.getObject("XY_Plane"), [""])
sketch5.MapMode = "FlatFace"
sketch5.AttachmentOffset = App.Placement(App.Vector(0, 0, -3), App.Rotation())
add_polygon(sketch5, [(38.5, 30.1), (38.5, 26.1), (36.3, 26.1), (36.3, 30.1)])  # lines 0-3
add_polygon(sketch5, [(33.5, 30.1), (33.5, 26.1), (31.3, 26.1), (31.3, 30.1)])  # lines 4-7
sketch5.addConstraint(Sketcher.Constraint("Vertical", 0))
sketch5.addConstraint(Sketcher.Constraint("Horizontal", 1))
sketch5.addConstraint(Sketcher.Constraint("Vertical", 2))
sketch5.addConstraint(Sketcher.Constraint("Horizontal", 3))
sketch5.addConstraint(Sketcher.Constraint("Vertical", 4))
sketch5.addConstraint(Sketcher.Constraint("Horizontal", 5))
sketch5.addConstraint(Sketcher.Constraint("Vertical", 6))
sketch5.addConstraint(Sketcher.Constraint("Horizontal", 7))
sketch5.addConstraint(Sketcher.Constraint("Horizontal", 1, 2, 4, 2))
sketch5.addConstraint(Sketcher.Constraint("Horizontal", 3, 2, 6, 2))
sketch5.addConstraint(Sketcher.Constraint("Equal", 3, 5))
sketch5.addConstraint(Sketcher.Constraint("DistanceY", 0, 2, 0, 1, Q("4 mm")))
sketch5.addConstraint(Sketcher.Constraint("DistanceX", 1, 2, 1, 1, Q("2.2 mm")))
sketch5.addConstraint(Sketcher.Constraint("DistanceX", 4, 2, 0, 2, Q("5 mm")))
sketch5.addConstraint(Sketcher.Constraint("DistanceY", -1, 1, 0, 2, Q("26.10243 mm")))
sketch5.addConstraint(Sketcher.Constraint("DistanceX", -1, 1, 0, 2, Q("38.513843 mm")))
pocket4 = body.newObject("PartDesign::Pocket", "Pocket003")
pocket4.Profile = sketch5
pocket4.Length = 2
pocket4.Reversed = True

# Sketch on XY plane
sketch6 = body.newObject("Sketcher::SketchObject", "Sketch005")
sketch6.AttachmentSupport = (doc.getObject("XY_Plane"), [""])
sketch6.MapMode = "FlatFace"
sketch6.addGeometry(Part.Circle(App.Vector(32, -30.9, 0), App.Vector(0, 0, 1), 4.1), False)
sketch6.addConstraint(Sketcher.Constraint("Diameter", 0, Q("8.2 mm")))
sketch6.addConstraint(Sketcher.Constraint("DistanceX", -1, 1, 0, 3, Q("32 mm")))
sketch6.addConstraint(Sketcher.Constraint("DistanceY", 0, 3, -1, 1, Q("30.938821 mm")))
pocket5 = body.newObject("PartDesign::Pocket", "Pocket004")
pocket5.Profile = sketch6
pocket5.Type = "ThroughAll"
doc.recompute()

fillet = body.newObject("PartDesign::Fillet", "Fillet")
fillet.Base = (pocket5, edges_at(pocket5, [
    (25.1, -39.9, -2),
    (16.6, -31.4, -2),
    (16.6, 31.4, -2),
    (25.1, 39.9, -2),
    (38.9, 39.9, -2),
    (47.4, 31.4, -2),
    (47.4, -31.4, -2),
    (38.9, -39.9, -2),
]))
fillet.Radius = 1
doc.recompute()

chamfer = body.newObject("PartDesign::Chamfer", "Chamfer")
chamfer.Base = (fillet, edges_at(fillet, [
    (36.414, 28.102, 0),
    (37.414, 26.902, 0),
    (38.414, 28.102, 0),
    (37.414, 29.302, 0),
    (32.414, 29.302, 0),
    (31.414, 28.102, 0),
    (32.414, 26.902, 0),
    (33.414, 28.102, 0),
]))
chamfer.Size = 0.3

doc.recompute()
